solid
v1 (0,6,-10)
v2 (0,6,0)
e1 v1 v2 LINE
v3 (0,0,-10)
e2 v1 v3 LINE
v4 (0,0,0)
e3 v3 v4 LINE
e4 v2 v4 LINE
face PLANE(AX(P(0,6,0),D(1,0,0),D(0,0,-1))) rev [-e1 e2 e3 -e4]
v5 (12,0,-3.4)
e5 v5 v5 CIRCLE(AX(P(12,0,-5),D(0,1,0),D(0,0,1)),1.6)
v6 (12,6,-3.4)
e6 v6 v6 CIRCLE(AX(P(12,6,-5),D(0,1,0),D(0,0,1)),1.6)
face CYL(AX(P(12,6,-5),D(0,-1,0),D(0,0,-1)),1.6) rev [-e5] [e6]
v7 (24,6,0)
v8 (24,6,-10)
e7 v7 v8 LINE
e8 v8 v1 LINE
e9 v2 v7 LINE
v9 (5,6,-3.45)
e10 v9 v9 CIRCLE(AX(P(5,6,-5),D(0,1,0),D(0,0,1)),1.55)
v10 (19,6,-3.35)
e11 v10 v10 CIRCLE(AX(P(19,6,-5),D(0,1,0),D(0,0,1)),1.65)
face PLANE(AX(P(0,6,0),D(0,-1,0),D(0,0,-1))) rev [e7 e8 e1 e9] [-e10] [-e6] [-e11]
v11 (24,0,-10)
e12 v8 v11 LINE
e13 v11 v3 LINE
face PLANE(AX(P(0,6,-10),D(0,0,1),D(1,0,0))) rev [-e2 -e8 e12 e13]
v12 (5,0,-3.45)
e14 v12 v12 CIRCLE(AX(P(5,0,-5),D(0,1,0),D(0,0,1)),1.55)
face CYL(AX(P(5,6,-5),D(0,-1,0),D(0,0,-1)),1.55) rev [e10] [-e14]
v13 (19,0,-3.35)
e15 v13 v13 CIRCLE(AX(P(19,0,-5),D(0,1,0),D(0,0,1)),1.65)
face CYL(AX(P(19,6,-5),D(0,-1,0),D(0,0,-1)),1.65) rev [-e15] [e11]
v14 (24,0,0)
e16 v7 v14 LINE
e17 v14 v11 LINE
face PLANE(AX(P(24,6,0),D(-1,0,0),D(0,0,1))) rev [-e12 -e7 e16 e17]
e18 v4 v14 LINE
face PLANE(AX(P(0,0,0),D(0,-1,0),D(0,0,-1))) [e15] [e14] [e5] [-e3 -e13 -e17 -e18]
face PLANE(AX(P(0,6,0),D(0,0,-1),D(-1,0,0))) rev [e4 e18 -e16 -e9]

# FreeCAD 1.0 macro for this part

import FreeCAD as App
import Part
import Sketcher
from FreeCAD import Vector

doc = App.newDocument("Part")
body = doc.addObject("PartDesign::Body", "Body")

# Sketch on XZ plane
sketch1 = body.newObject("Sketcher::SketchObject", "Sketch")
sketch1.AttachmentSupport = (doc.getObject("XZ_Plane"), [""])
sketch1.MapMode = "FlatFace"
sketch1.addGeometry([
    Part.LineSegment(Vector(0, -10, 0), Vector(0, 0, 0)),  # 0
    Part.LineSegment(Vector(0, 0, 0), Vector(24, 0, 0)),  # 1
    Part.LineSegment(Vector(24, 0, 0), Vector(24, -10, 0)),  # 2
    Part.LineSegment(Vector(24, -10, 0), Vector(0, -10, 0)),  # 3
    Part.Circle(Vector(5, -5, 0), Vector(0, 0, 1), 1.6),  # 4
    Part.Circle(Vector(12, -5, 0), Vector(0, 0, 1), 1.6),  # 5
    Part.Circle(Vector(19, -5, 0), Vector(0, 0, 1), 1.6),  # 6
], False)
sketch1.addConstraint([
    Sketcher.Constraint("Coincident", 0, 2, 1, 1),
    Sketcher.Constraint("Coincident", 1, 2, 2, 1),
    Sketcher.Constraint("Coincident", 2, 2, 3, 1),
    Sketcher.Constraint("Coincident", 3, 2, 0, 1),
    Sketcher.Constraint("Vertical", 0),
    Sketcher.Constraint("Horizontal", 1),
    Sketcher.Constraint("Vertical", 2),
    Sketcher.Constraint("Horizontal", 3),
    Sketcher.Constraint("Coincident", 0, 2, -1, 1),
    Sketcher.Constraint("Horizontal", 4, 3, 5, 3),
    Sketcher.Constraint("Horizontal", 5, 3, 6, 3),
    Sketcher.Constraint("Diameter", 4, 3.1),
    Sketcher.Constraint("Diameter", 5, 3.2),
    Sketcher.Constraint("Diameter", 6, 3.3),
    Sketcher.Constraint("DistanceX", 1, 1, 1, 2, 24.0),
    Sketcher.Constraint("DistanceY", 0, 1, 0, 2, 10.0),
    Sketcher.Constraint("DistanceX", -1, 1, 4, 3, 5.0),
    Sketcher.Constraint("DistanceY", 4, 3, -1, 1, 5.0),
    Sketcher.Constraint("DistanceX", -1, 1, 5, 3, 12.0),
    Sketcher.Constraint("DistanceX", -1, 1, 6, 3, 19.0),
])
pad1 = body.newObject("PartDesign::Pad", "Pad")
pad1.Profile = sketch1
pad1.Length = 6
pad1.Reversed = True

doc.recompute()
